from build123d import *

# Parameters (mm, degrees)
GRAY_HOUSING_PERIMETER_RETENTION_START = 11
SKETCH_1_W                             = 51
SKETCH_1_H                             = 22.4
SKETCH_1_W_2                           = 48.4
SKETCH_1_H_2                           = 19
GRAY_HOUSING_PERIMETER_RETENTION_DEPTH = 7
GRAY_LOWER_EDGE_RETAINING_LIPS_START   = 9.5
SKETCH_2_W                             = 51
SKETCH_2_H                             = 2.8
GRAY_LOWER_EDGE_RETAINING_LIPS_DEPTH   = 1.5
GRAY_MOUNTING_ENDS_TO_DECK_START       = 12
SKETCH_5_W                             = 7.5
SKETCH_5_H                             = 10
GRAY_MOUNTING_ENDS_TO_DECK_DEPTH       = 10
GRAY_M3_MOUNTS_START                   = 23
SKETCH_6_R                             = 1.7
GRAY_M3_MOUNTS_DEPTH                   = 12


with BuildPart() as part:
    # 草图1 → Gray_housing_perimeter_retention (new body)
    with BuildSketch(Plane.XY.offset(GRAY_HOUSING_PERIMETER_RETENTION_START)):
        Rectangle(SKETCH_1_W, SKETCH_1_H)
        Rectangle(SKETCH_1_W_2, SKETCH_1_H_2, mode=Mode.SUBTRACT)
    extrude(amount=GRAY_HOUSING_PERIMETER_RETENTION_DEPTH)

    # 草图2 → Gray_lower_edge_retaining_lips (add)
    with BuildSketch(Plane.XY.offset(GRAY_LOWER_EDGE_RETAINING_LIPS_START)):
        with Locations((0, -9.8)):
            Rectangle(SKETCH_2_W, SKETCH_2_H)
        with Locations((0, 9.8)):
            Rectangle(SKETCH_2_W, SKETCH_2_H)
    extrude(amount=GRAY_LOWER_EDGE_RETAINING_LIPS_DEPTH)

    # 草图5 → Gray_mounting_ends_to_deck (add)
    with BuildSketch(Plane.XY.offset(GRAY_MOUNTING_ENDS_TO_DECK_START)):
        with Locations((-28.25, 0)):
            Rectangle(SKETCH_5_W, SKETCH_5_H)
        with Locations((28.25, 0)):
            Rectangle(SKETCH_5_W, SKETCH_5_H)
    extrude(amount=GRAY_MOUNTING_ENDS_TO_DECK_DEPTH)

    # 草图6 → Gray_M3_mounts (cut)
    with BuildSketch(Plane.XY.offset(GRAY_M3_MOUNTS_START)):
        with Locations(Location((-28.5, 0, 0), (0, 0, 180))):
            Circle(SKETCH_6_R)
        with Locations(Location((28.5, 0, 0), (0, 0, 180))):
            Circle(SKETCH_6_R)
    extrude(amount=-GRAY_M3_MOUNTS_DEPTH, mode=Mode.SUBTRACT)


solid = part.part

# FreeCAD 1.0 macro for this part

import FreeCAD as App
import Part
import Sketcher

V = App.Vector
Q = App.Units.Quantity


def add_polygon(sketch, points):
    """Adds a closed chain of lines whose ends are joined by coincident constraints."""
    first, n = sketch.GeometryCount, len(points)
    for a, b in zip(points, points[1:] + points[:1]):
        sketch.addGeometry(Part.LineSegment(App.Vector(*a, 0), App.Vector(*b, 0)), False)
    for i in range(n):
        sketch.addConstraint(Sketcher.Constraint("Coincident", first + i, 2, first + (i + 1) % n, 1))

doc = App.newDocument("Part")
params = doc.addObject("Spreadsheet::Sheet", "Params")
for row, (alias, value) in enumerate([
    ("sketch1_width", "51 mm"),
    ("sketch1_height", "19 mm"),
    ("sketch1_width2", "48.4 mm"),
    ("sketch1_height2", "22.4 mm"),
    ("pad1_length", "7 mm"),
    ("sketch2_width", "51 mm"),
    ("sketch2_height", "2.8 mm"),
    ("pad2_length", "1.5 mm"),
    ("sketch3_height", "10 mm"),
    ("sketch3_width", "7.5 mm"),
    ("pad3_length", "10 mm"),
    ("sketch4_diameter", "3.4 mm"),
    ("pocket1_length", "12 mm"),
], start=1):
    params.set(f"A{row}", alias)
    params.set(f"B{row}", "=" + value)
    params.setAlias(f"B{row}", alias)

body = doc.addObject("PartDesign::Body", "Body")

# Sketch on XY plane
sketch1 = body.newObject("Sketcher::SketchObject", "Sketch")
sketch1.AttachmentSupport = (doc.getObject("XY_Plane"), [""])
sketch1.MapMode = "FlatFace"
sketch1.AttachmentOffset = App.Placement(V(0, 0, 11), App.Rotation())
add_polygon(sketch1, [(-26, 11), (-26, -11), (26, -11), (26, 11)])  # lines 0-3
add_polygon(sketch1, [(24, -10), (-24, -10), (-24, 10), (24, 10)])  # lines 4-7
sketch1.addConstraint([
    Sketcher.Constraint("Vertical", 0),
    Sketcher.Constraint("Horizontal", 1),
    Sketcher.Constraint("Vertical", 2),
    Sketcher.Constraint("Horizontal", 3),
    Sketcher.Constraint("Horizontal", 4),
    Sketcher.Constraint("Vertical", 5),
    Sketcher.Constraint("Horizontal", 6),
    Sketcher.Constraint("Vertical", 7),
    Sketcher.Constraint("Symmetric", 0, 2, 2, 2, -1, 1),
    Sketcher.Constraint("Symmetric", 4, 2, 6, 2, -1, 1),
    Sketcher.Constraint("DistanceX", 1, 1, 1, 2, Q("51 mm")),
    Sketcher.Constraint("DistanceY", 5, 1, 5, 2, Q("19 mm")),
    Sketcher.Constraint("DistanceX", 4, 2, 4, 1, Q("48.4 mm")),
    Sketcher.Constraint("DistanceY", 0, 2, 0, 1, Q("22.4 mm")),
])
sketch1.setExpression("Constraints[18]", "Params.sketch1_width")
sketch1.setExpression("Constraints[19]", "Params.sketch1_height")
sketch1.setExpression("Constraints[20]", "Params.sketch1_width2")
sketch1.setExpression("Constraints[21]", "Params.sketch1_height2")
pad1 = body.newObject("PartDesign::Pad", "Pad")
pad1.Profile = sketch1
pad1.setExpression("Length", "Params.pad1_length")

# Sketch on XY plane
sketch2 = body.newObject("Sketcher::SketchObject", "Sketch001")
sketch2.AttachmentSupport = (doc.getObject("XY_Plane"), [""])
sketch2.MapMode = "FlatFace"
sketch2.AttachmentOffset = App.Placement(V(0, 0, 9.5), App.Rotation())
add_polygon(sketch2, [(-25.5, -8.4), (-25.5, -11.2), (25.5, -11.2), (25.5, -8.4)])  # lines 0-3
add_polygon(sketch2, [(-25.5, 11.2), (-25.5, 8.4), (25.5, 8.4), (25.5, 11.2)])  # lines 4-7
sketch2.addConstraint([
    Sketcher.Constraint("Vertical", 0),
    Sketcher.Constraint("Horizontal", 1),
    Sketcher.Constraint("Vertical", 2),
    Sketcher.Constraint("Horizontal", 3),
    Sketcher.Constraint("Vertical", 4),
    Sketcher.Constraint("Horizontal", 5),
    Sketcher.Constraint("Vertical", 6),
    Sketcher.Constraint("Horizontal", 7),
    Sketcher.Constraint("Symmetric", 2, 2, 4, 2, -1, 1),
    Sketcher.Constraint("Symmetric", 0, 2, 6, 2, -1, 1),
    Sketcher.Constraint("Vertical", 3, 2, 4, 2),
    Sketcher.Constraint("DistanceX", 1, 1, 1, 2, Q("51 mm")),
    Sketcher.Constraint("DistanceY", 0, 2, 0, 1, Q("2.8 mm")),
    Sketcher.Constraint("DistanceY", 0, 2, -1, 1, Q("11.2 mm")),
])
sketch2.setExpression("Constraints[19]", "Params.sketch2_width")
sketch2.setExpression("Constraints[20]", "Params.sketch2_height")
pad2 = body.newObject("PartDesign::Pad", "Pad001")
pad2.Profile = sketch2
pad2.setExpression("Length", "Params.pad2_length")

# Sketch on XY plane
sketch3 = body.newObject("Sketcher::SketchObject", "Sketch002")
sketch3.AttachmentSupport = (doc.getObject("XY_Plane"), [""])
sketch3.MapMode = "FlatFace"
sketch3.AttachmentOffset = App.Placement(V(0, 0, 12), App.Rotation())
add_polygon(sketch3, [(-32, 5), (-32, -5), (-24, -5), (-24, 5)])  # lines 0-3
add_polygon(sketch3, [(24, 5), (24, -5), (32, -5), (32, 5)])  # lines 4-7
sketch3.addConstraint([
    Sketcher.Constraint("Vertical", 0),
    Sketcher.Constraint("Horizontal", 1),
    Sketcher.Constraint("Vertical", 2),
    Sketcher.Constraint("Horizontal", 3),
    Sketcher.Constraint("Vertical", 4),
    Sketcher.Constraint("Horizontal", 5),
    Sketcher.Constraint("Vertical", 6),
    Sketcher.Constraint("Horizontal", 7),
    Sketcher.Constraint("Symmetric", 2, 2, 4, 2, -1, 1),
    Sketcher.Constraint("Symmetric", 0, 2, 6, 2, -1, 1),
    Sketcher.Constraint("Horizontal", 1, 2, 4, 2),
    Sketcher.Constraint("DistanceY", 0, 2, 0, 1, Q("10 mm")),
    Sketcher.Constraint("DistanceX", 1, 1, 1, 2, Q("7.5 mm")),
    Sketcher.Constraint("DistanceX", 0, 2, -1, 1, Q("32 mm")),
])
sketch3.setExpression("Constraints[19]", "Params.sketch3_height")
sketch3.setExpression("Constraints[20]", "Params.sketch3_width")
pad3 = body.newObject("PartDesign::Pad", "Pad002")
pad3.Profile = sketch3
pad3.setExpression("Length", "Params.pad3_length")

# Sketch on XY plane
sketch4 = body.newObject("Sketcher::SketchObject", "Sketch003")
sketch4.AttachmentSupport = (doc.getObject("XY_Plane"), [""])
sketch4.MapMode = "FlatFace"
sketch4.AttachmentOffset = App.Placement(V(0, 0, 23), App.Rotation())
sketch4.addGeometry([
    Part.Circle(V(-28.5, 0, 0), V(0, 0, 1), 1.7),
    Part.Circle(V(28.5, 0, 0), V(0, 0, 1), 1.7),
], False)
sketch4.addConstraint([
    Sketcher.Constraint("Equal", 0, 1),
    Sketcher.Constraint("Symmetric", 0, 3, 1, 3, -1, 1),
    Sketcher.Constraint("PointOnObject", 0, 3, -1),
    Sketcher.Constraint("Diameter", 0, Q("3.4 mm")),
    Sketcher.Constraint("DistanceX", 0, 3, 1, 3, Q("57 mm")),
])
sketch4.setExpression("Constraints[3]", "Params.sketch4_diameter")
pocket1 = body.newObject("PartDesign::Pocket", "Pocket")
pocket1.Profile = sketch4
pocket1.setExpression("Length", "Params.pocket1_length")

doc.recompute()
